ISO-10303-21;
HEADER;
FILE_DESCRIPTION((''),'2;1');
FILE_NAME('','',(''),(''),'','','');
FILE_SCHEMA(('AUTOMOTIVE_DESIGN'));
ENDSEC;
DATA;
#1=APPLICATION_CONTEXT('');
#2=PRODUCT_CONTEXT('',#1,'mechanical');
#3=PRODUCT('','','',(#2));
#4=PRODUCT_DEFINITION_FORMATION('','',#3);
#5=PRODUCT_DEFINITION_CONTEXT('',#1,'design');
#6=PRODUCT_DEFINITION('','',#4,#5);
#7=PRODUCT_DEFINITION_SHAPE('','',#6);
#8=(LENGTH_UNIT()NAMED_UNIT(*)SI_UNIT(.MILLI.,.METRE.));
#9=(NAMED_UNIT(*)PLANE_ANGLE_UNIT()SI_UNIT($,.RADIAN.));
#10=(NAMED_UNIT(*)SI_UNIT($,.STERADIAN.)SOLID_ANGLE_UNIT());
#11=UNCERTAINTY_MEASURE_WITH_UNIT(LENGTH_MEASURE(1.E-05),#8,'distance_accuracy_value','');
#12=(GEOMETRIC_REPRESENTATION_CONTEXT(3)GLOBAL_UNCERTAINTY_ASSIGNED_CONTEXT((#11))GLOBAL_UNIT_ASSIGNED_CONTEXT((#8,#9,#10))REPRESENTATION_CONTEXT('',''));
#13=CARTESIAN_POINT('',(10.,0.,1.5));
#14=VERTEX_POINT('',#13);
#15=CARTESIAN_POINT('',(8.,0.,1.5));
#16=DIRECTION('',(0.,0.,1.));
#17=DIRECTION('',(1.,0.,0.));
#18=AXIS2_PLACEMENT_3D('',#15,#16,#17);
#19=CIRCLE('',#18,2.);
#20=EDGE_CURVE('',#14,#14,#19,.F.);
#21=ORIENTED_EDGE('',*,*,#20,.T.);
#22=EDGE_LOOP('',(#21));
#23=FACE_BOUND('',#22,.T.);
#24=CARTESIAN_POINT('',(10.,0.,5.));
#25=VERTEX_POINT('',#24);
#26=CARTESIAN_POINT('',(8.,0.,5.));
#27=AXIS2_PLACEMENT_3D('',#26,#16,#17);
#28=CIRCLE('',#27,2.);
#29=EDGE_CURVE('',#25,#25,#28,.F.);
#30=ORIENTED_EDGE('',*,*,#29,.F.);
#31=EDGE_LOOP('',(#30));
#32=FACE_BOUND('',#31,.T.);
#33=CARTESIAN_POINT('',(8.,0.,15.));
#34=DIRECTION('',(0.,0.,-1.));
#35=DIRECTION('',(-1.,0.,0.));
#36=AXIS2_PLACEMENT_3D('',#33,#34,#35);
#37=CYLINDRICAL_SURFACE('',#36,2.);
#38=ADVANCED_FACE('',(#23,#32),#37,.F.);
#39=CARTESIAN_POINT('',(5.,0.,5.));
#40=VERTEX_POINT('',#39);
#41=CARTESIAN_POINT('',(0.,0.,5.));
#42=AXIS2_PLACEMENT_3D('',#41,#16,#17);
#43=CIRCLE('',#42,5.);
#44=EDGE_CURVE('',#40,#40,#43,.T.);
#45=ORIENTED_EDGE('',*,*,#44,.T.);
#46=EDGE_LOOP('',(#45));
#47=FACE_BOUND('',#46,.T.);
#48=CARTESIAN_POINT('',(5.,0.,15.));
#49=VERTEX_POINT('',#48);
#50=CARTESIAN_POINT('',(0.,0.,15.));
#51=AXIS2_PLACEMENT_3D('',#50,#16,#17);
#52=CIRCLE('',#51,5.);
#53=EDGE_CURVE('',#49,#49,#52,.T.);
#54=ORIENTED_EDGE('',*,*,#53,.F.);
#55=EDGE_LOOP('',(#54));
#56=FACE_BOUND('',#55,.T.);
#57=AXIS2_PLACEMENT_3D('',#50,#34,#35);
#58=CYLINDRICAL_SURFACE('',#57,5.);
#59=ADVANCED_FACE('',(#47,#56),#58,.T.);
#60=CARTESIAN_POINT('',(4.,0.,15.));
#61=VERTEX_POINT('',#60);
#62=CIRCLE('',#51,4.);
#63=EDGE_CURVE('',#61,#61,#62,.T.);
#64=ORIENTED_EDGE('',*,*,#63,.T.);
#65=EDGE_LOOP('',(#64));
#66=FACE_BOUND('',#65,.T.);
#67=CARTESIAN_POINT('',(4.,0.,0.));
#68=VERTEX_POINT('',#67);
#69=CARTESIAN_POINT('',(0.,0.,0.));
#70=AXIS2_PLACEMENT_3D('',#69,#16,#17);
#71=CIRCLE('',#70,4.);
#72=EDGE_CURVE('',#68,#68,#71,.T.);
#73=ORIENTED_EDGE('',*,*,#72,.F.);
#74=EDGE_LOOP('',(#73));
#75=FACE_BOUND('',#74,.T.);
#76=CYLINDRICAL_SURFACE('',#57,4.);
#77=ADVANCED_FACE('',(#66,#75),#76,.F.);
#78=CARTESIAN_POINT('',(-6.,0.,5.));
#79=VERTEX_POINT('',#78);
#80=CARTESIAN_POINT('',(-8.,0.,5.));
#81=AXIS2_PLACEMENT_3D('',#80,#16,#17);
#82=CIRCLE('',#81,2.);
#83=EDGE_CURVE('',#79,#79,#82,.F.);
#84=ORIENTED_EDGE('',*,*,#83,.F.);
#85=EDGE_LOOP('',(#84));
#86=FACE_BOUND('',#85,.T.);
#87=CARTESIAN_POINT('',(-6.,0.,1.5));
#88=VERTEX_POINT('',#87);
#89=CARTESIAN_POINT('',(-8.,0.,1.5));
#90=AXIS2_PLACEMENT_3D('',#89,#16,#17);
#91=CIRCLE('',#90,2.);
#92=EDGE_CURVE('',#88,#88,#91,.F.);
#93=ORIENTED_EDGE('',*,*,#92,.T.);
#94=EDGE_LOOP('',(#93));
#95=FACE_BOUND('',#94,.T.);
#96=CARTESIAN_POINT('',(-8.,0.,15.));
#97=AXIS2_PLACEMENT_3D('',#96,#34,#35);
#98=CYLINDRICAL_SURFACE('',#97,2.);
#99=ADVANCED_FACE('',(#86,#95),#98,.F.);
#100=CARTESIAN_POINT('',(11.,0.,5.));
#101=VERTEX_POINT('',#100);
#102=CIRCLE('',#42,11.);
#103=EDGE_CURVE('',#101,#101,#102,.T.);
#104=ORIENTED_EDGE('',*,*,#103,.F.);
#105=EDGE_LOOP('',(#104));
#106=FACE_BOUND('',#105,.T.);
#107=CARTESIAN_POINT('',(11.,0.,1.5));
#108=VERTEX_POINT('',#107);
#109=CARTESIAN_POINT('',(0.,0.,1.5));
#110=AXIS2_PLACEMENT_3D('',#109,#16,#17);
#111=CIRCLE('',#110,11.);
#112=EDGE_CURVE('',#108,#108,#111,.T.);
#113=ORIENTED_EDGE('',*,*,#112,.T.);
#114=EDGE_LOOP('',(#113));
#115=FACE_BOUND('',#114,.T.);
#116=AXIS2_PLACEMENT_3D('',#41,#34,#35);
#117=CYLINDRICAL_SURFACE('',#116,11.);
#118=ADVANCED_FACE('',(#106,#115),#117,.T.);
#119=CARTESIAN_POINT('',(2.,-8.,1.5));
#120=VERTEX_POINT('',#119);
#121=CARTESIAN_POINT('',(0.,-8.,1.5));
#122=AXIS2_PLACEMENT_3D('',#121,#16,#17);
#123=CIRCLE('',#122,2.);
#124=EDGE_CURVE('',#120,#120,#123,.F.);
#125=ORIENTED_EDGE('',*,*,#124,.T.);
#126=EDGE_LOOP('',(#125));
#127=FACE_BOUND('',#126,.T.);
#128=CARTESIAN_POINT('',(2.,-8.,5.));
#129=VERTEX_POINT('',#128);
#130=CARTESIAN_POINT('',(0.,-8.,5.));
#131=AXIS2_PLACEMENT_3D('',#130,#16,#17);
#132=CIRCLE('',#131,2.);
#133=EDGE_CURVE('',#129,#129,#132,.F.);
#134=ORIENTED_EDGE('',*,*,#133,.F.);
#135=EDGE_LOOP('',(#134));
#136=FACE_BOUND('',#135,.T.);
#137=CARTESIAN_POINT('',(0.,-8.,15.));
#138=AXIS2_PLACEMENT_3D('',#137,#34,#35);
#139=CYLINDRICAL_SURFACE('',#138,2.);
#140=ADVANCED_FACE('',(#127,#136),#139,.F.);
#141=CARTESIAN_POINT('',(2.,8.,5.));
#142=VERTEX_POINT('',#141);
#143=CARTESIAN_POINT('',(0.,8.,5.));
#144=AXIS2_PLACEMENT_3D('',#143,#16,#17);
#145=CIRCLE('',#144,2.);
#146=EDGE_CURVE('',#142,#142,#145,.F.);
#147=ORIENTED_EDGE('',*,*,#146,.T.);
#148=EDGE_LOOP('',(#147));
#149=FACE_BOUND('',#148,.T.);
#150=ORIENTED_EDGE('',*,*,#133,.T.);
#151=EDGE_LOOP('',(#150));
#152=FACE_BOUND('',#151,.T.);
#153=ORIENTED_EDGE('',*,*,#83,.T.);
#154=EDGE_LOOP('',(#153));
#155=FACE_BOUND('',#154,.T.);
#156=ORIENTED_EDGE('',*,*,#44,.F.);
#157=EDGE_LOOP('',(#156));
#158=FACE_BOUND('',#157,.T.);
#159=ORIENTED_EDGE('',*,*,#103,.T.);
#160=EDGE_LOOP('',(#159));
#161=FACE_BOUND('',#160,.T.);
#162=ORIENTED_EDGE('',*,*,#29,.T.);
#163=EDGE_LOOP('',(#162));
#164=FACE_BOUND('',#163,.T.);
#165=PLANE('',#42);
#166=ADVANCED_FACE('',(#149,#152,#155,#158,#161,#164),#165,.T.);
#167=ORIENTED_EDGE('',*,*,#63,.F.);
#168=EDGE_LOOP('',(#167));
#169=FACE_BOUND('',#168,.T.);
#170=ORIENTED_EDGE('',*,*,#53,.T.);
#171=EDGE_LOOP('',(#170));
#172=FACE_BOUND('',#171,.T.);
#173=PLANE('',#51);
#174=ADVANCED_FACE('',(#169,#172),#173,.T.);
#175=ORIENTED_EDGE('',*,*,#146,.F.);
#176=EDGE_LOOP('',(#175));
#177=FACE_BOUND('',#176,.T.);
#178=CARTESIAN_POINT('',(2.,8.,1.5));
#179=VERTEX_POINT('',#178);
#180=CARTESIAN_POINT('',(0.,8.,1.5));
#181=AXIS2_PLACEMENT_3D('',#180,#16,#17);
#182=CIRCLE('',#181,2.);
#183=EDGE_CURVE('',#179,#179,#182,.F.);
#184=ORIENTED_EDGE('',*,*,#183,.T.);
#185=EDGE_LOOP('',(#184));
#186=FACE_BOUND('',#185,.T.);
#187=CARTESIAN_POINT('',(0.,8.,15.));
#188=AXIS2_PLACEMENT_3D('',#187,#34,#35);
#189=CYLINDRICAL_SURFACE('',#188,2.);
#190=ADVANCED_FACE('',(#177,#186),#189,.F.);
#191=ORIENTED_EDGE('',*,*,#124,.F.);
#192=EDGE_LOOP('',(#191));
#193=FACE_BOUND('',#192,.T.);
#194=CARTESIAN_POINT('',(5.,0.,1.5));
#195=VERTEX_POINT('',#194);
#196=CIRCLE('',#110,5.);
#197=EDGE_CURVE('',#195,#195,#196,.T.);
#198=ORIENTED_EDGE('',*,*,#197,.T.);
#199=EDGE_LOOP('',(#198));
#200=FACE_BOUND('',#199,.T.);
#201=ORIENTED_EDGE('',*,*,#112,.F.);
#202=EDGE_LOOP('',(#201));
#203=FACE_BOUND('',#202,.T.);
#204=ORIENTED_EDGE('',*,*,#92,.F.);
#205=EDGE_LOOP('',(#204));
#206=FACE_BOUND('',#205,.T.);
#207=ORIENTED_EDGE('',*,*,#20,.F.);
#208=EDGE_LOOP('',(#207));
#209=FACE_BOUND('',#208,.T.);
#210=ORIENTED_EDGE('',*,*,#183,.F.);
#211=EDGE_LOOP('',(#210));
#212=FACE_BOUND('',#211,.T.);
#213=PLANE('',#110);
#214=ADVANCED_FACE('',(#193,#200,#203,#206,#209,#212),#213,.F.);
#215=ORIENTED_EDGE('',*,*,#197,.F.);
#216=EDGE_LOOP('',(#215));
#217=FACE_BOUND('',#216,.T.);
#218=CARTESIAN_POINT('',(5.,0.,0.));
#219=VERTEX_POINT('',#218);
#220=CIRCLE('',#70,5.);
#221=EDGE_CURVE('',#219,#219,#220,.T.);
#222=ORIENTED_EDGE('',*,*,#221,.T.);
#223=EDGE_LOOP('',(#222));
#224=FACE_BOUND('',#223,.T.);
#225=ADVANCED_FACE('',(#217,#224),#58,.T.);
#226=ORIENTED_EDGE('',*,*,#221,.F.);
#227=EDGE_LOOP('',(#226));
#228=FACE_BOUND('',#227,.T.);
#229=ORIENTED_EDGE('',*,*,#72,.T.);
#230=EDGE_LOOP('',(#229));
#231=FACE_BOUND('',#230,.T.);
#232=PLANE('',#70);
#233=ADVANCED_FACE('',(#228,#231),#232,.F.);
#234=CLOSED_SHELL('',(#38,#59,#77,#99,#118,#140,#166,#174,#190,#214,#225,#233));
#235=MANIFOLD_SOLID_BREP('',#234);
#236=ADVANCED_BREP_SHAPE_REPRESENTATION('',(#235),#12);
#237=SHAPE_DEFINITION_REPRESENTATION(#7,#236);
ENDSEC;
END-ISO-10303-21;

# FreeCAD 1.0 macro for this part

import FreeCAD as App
import Part
import Sketcher

doc = App.newDocument("Part")
body = doc.addObject("PartDesign::Body", "Body")

# Sketch on XY plane
sketch1 = body.newObject("Sketcher::SketchObject", "Sketch")
sketch1.AttachmentSupport = (doc.getObject("XY_Plane"), [""])
sketch1.MapMode = "FlatFace"
sketch1.addGeometry([
    Part.Circle(App.Vector(0, 0, 0), App.Vector(0, 0, 1), 5),
    Part.Circle(App.Vector(0, 0, 0), App.Vector(0, 0, 1), 4),
], False)
sketch1.addConstraint([
    Sketcher.Constraint("Coincident", 0, 3, -1, 1),
    Sketcher.Constraint("Coincident", 1, 3, -1, 1),
    Sketcher.Constraint("Diameter", 0, 10.0),
    Sketcher.Constraint("Diameter", 1, 8.0),
])
pad1 = body.newObject("PartDesign::Pad", "Pad")
pad1.Profile = sketch1
pad1.Length = 15

# Sketch on XY plane
sketch2 = body.newObject("Sketcher::SketchObject", "Sketch001")
sketch2.AttachmentSupport = (doc.getObject("XY_Plane"), [""])
sketch2.MapMode = "FlatFace"
sketch2.AttachmentOffset = App.Placement(App.Vector(0, 0, 1.5), App.Rotation())
sketch2.addGeometry([
    Part.Circle(App.Vector(0, 0, 0), App.Vector(0, 0, 1), 11),
    Part.Circle(App.Vector(0, 0, 0), App.Vector(0, 0, 1), 5),
], False)
sketch2.addConstraint([
    Sketcher.Constraint("Coincident", 0, 3, -1, 1),
    Sketcher.Constraint("Coincident", 1, 3, -1, 1),
    Sketcher.Constraint("Diameter", 0, 22.0),
    Sketcher.Constraint("Diameter", 1, 10.0),
])
pad2 = body.newObject("PartDesign::Pad", "Pad001")
pad2.Profile = sketch2
pad2.Length = 3.5

# Sketch on XY plane
sketch3 = body.newObject("Sketcher::SketchObject", "Sketch002")
sketch3.AttachmentSupport = (doc.getObject("XY_Plane"), [""])
sketch3.MapMode = "FlatFace"
sketch3.addGeometry(Part.Circle(App.Vector(0, 8, 0), App.Vector(0, 0, 1), 2), False)
sketch3.addConstraint([
    Sketcher.Constraint("PointOnObject", 0, 3, -2),
    Sketcher.Constraint("Diameter", 0, 4.0),
    Sketcher.Constraint("DistanceY", -1, 1, 0, 3, 8.0),
])
pocket1 = body.newObject("PartDesign::Pocket", "Pocket")
pocket1.Profile = sketch3
pocket1.Type = "ThroughAll"
pocket1.Reversed = True
doc.recompute()

polarpattern = body.newObject("PartDesign::PolarPattern", "PolarPattern")
polarpattern.Originals = [pocket1]
polarpattern.Axis = (doc.getObject("Z_Axis"), [""])
polarpattern.Angle = 360
polarpattern.Occurrences = 4
body.Tip = polarpattern

doc.recompute()
